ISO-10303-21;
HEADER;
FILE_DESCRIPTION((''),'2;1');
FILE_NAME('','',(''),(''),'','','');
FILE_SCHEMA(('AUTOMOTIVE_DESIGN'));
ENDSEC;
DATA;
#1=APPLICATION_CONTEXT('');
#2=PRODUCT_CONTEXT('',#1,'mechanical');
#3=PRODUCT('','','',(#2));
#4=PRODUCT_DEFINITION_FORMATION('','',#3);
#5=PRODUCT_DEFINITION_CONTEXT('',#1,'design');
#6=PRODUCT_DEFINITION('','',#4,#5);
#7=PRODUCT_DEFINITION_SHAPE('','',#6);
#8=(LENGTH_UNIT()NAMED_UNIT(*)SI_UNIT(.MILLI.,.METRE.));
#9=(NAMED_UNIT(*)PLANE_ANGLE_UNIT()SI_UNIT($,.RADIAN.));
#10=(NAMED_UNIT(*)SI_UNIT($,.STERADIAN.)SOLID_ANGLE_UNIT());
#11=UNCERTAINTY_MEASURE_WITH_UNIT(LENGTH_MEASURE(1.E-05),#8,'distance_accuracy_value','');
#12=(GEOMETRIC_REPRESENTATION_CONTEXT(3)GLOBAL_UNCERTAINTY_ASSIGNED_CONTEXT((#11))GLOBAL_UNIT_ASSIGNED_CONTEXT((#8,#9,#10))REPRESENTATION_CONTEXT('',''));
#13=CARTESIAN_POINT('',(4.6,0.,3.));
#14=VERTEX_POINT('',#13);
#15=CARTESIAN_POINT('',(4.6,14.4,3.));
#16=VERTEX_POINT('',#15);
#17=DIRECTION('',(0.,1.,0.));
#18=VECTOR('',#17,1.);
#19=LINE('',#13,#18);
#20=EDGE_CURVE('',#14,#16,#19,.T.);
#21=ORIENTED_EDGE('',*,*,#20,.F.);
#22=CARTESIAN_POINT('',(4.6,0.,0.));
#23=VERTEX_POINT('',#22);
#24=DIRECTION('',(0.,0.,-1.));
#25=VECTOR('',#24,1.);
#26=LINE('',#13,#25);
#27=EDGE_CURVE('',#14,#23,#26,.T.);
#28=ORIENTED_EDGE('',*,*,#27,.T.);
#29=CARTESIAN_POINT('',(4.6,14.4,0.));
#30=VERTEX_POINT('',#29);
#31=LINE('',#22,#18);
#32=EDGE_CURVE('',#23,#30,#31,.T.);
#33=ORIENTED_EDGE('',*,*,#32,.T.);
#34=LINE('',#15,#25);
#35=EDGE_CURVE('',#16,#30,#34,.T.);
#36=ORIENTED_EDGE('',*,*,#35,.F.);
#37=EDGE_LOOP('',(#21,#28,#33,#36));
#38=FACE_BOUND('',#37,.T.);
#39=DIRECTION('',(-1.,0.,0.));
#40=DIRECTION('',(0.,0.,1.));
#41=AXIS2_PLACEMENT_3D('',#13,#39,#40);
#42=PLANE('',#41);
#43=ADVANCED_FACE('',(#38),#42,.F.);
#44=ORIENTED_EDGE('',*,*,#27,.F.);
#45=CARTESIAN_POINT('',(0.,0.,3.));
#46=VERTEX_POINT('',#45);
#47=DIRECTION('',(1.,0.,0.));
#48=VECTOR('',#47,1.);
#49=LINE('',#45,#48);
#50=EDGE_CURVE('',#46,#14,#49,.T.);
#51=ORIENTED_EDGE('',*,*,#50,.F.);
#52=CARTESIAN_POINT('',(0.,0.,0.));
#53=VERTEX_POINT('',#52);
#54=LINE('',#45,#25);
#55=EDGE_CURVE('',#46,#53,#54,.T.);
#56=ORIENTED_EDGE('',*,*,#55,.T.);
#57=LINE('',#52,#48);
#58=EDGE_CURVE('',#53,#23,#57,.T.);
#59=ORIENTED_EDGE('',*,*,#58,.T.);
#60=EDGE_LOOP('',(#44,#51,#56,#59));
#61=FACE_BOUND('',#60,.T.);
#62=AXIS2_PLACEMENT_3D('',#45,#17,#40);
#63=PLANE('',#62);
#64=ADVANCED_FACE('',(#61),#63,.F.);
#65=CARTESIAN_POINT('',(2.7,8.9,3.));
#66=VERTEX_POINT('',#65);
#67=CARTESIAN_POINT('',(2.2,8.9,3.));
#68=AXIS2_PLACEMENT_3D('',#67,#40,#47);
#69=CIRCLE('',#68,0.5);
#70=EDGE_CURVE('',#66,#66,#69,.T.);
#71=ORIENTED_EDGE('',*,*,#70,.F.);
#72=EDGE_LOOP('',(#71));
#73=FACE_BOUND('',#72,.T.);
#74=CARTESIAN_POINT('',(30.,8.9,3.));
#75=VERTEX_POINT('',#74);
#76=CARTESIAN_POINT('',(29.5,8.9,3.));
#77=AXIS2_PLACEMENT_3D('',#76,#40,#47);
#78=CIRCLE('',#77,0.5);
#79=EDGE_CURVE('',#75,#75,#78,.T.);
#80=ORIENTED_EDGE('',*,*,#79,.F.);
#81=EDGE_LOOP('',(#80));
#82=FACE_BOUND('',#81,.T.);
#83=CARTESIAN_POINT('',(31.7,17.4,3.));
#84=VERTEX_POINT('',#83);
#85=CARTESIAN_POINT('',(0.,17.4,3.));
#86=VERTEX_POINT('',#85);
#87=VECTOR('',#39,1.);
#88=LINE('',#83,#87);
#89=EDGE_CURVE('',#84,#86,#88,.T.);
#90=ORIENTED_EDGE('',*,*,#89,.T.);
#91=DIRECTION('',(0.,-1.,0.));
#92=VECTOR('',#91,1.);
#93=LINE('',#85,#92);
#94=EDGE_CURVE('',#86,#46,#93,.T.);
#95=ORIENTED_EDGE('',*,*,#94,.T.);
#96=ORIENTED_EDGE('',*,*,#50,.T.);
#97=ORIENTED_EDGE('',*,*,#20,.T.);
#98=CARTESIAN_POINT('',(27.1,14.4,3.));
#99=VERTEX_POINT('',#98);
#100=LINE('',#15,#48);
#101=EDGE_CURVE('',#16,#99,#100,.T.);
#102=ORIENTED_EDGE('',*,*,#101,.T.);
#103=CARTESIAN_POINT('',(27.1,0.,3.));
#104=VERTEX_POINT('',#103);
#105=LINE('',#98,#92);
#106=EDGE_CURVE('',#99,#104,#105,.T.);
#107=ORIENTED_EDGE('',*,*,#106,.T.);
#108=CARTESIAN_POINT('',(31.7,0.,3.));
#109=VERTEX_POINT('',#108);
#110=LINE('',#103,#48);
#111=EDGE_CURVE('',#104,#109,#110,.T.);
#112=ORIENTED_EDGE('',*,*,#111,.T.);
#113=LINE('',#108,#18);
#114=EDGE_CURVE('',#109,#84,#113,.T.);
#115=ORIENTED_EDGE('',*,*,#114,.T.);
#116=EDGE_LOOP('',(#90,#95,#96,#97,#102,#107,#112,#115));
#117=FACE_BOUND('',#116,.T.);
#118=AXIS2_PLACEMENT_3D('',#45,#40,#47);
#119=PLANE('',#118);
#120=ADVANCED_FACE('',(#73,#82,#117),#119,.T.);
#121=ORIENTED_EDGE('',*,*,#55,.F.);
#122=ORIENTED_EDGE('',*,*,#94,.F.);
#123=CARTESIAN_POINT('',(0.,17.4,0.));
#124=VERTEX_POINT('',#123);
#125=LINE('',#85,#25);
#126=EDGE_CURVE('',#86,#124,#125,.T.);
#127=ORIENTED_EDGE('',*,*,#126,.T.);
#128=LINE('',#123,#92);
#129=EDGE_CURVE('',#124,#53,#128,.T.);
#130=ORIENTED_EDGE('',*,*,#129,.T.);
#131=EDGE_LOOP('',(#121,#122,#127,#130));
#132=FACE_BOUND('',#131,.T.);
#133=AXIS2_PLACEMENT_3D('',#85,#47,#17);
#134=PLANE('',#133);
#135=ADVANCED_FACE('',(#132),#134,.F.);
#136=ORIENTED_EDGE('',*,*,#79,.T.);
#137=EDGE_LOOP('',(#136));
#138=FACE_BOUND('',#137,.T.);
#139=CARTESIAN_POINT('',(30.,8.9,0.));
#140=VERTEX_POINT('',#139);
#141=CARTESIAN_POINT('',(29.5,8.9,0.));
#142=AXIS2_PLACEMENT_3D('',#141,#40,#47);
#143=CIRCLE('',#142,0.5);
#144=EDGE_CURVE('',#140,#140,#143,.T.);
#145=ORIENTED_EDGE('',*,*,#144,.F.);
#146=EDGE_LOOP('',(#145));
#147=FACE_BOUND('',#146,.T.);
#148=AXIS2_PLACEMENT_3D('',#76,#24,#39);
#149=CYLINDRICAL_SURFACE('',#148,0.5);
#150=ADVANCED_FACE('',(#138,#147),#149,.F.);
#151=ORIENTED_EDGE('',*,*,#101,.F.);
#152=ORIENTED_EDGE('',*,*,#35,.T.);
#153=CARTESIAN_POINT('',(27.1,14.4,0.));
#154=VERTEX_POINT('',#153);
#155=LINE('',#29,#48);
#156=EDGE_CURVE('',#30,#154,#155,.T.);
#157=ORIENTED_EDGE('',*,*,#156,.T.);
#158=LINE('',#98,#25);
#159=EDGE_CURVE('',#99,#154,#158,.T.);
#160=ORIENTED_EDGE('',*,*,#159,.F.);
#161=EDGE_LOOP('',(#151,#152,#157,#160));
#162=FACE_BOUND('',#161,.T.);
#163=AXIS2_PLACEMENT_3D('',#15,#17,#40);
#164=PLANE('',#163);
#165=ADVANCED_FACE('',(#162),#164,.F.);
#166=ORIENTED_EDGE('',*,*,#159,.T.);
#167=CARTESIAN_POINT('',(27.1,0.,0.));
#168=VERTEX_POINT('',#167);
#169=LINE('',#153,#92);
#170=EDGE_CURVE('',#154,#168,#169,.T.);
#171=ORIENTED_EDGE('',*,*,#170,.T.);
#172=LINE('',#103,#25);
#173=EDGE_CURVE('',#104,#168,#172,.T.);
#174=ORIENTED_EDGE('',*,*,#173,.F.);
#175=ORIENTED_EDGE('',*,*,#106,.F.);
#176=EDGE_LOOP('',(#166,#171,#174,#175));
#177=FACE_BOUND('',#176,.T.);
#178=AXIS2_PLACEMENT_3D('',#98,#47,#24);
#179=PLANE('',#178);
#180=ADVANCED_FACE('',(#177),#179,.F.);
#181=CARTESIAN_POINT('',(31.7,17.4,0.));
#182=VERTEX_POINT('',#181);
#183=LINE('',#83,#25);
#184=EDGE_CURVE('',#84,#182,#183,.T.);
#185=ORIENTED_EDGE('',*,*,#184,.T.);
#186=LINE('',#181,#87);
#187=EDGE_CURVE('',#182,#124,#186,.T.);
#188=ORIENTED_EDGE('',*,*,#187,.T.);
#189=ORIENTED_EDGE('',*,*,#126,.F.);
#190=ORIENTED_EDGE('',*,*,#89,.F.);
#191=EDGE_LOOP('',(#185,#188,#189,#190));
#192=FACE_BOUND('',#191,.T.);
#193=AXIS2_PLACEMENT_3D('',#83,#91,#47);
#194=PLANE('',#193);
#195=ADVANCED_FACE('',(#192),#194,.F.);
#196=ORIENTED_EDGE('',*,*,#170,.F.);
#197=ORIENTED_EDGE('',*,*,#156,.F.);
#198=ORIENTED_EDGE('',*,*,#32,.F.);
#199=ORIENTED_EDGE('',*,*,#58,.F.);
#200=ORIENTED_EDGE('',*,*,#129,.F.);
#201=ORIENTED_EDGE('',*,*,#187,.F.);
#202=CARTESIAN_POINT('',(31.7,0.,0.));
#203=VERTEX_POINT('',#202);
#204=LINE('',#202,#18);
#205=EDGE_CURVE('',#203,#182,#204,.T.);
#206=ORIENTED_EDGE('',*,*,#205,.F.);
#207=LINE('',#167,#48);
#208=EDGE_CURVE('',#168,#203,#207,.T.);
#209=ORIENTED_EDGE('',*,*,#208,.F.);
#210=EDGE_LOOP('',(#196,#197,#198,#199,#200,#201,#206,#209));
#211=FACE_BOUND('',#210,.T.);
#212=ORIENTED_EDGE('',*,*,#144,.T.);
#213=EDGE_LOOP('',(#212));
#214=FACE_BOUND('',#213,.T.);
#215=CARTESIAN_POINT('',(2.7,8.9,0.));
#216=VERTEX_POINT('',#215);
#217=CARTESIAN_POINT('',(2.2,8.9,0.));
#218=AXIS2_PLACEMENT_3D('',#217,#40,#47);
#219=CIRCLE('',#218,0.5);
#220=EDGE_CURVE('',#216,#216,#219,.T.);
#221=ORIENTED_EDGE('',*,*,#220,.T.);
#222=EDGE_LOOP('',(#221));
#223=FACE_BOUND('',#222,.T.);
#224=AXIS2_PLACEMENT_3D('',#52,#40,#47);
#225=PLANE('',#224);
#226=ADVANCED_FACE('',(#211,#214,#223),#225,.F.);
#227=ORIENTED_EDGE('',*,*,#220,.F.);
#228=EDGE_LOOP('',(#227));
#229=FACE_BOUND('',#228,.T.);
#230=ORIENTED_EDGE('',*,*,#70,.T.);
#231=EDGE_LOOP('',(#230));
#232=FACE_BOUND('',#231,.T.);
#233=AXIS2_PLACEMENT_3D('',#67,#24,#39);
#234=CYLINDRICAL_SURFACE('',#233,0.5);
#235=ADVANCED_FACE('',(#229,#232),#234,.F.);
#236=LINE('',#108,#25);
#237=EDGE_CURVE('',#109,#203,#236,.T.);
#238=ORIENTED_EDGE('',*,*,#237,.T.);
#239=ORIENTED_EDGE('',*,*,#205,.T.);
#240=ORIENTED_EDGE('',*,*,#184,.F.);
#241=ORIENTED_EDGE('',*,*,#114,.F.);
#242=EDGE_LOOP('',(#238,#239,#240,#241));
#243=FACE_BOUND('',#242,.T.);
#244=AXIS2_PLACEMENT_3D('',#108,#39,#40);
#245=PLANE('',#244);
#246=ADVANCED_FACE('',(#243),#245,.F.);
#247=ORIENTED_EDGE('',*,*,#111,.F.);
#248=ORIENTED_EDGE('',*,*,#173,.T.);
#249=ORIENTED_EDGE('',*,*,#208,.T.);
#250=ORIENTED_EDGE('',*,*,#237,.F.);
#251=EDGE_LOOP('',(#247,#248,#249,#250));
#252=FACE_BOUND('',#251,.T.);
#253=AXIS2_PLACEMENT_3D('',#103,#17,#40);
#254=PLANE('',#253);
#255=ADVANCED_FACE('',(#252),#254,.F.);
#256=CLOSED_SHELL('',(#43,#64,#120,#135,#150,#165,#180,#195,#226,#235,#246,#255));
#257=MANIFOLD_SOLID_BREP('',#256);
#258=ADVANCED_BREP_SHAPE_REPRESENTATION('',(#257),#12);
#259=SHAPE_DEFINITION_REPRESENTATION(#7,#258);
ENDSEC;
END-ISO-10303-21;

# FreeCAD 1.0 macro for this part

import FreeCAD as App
import Part
import Sketcher

V = App.Vector
Q = App.Units.Quantity


def add_polygon(sketch, points):
    """Adds a closed chain of lines whose ends are joined by coincident constraints."""
    first, n = sketch.GeometryCount, len(points)
    for a, b in zip(points, points[1:] + points[:1]):
        sketch.addGeometry(Part.LineSegment(App.Vector(*a, 0), App.Vector(*b, 0)), False)
    for i in range(n):
        sketch.addConstraint(Sketcher.Constraint("Coincident", first + i, 2, first + (i + 1) % n, 1))

doc = App.newDocument("Part")
body = doc.addObject("PartDesign::Body", "Body")

# Sketch on XY plane
sketch1 = body.newObject("Sketcher::SketchObject", "Sketch")
sketch1.AttachmentSupport = (doc.getObject("XY_Plane"), [""])
sketch1.MapMode = "FlatFace"
add_polygon(sketch1, [(0, 0), (4.6, 0), (4.6, 14.4), (27.1, 14.4), (27.1, 0), (31.7, 0), (31.7, 17.4), (0, 17.4)])  # lines 0-7
sketch1.addGeometry(Part.Circle(V(2.2, 8.9, 0), V(0, 0, 1), 0.5), False)  # 8
sketch1.addGeometry(Part.Circle(V(29.5, 8.9, 0), V(0, 0, 1), 0.5), False)  # 9
sketch1.addConstraint([
    Sketcher.Constraint("Horizontal", 0),
    Sketcher.Constraint("Vertical", 1),
    Sketcher.Constraint("Horizontal", 2),
    Sketcher.Constraint("Vertical", 3),
    Sketcher.Constraint("Horizontal", 4),
    Sketcher.Constraint("Vertical", 5),
    Sketcher.Constraint("Horizontal", 6),
    Sketcher.Constraint("Vertical", 7),
    Sketcher.Constraint("Coincident", 7, 2, -1, 1),
    Sketcher.Constraint("Equal", 8, 9),
    Sketcher.Constraint("PointOnObject", 3, 2, -1),
    Sketcher.Constraint("Horizontal", 8, 3, 9, 3),
    Sketcher.Constraint("Equal", 0, 4),
    Sketcher.Constraint("Diameter", 8, Q("1 mm")),
    Sketcher.Constraint("DistanceX", 0, 1, 0, 2, Q("4.6 mm")),
    Sketcher.Constraint("DistanceX", 2, 1, 2, 2, Q("22.5 mm")),
    Sketcher.Constraint("DistanceY", 1, 1, 1, 2, Q("14.4 mm")),
    Sketcher.Constraint("DistanceY", 5, 1, 5, 2, Q("17.4 mm")),
    Sketcher.Constraint("DistanceX", -1, 1, 8, 3, Q("2.2 mm")),
    Sketcher.Constraint("DistanceY", -1, 1, 8, 3, Q("8.9 mm")),
    Sketcher.Constraint("DistanceX", -1, 1, 9, 3, Q("29.5 mm")),
])
pad1 = body.newObject("PartDesign::Pad", "Pad")
pad1.Profile = sketch1
pad1.Length = 3

doc.recompute()
